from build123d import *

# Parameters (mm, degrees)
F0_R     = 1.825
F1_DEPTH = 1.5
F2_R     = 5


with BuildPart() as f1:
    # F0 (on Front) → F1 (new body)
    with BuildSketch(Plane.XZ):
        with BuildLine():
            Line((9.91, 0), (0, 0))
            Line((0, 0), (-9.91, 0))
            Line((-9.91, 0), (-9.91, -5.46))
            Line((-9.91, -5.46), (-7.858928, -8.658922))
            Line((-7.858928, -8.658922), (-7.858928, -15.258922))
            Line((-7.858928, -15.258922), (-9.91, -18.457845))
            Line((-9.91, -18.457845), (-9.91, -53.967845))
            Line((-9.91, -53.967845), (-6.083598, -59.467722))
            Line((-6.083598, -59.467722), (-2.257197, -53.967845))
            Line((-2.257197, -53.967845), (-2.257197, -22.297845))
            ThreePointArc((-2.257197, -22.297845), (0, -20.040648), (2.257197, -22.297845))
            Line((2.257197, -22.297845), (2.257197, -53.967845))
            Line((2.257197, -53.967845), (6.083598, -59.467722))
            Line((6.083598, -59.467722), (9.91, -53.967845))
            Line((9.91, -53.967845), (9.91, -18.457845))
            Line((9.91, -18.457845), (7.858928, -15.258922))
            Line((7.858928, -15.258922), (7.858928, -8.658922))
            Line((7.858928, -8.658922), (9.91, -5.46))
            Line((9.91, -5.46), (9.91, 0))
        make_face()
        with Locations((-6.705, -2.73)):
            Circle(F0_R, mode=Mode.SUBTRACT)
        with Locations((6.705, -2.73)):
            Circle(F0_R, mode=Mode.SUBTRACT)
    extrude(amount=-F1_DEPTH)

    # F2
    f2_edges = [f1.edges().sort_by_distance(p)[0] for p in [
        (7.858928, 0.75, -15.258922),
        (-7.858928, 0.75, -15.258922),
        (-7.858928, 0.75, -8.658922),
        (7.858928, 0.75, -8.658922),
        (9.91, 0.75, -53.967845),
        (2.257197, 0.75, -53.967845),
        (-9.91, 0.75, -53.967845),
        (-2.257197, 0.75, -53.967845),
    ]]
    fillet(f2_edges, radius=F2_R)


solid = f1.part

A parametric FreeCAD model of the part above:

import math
import FreeCAD as App
import Part
import Sketcher
from FreeCAD import Vector


def edges_at(feature, points):
    """Names of the edges that pass closest to the given points."""
    edges = feature.Shape.Edges
    near = lambda p: min(range(len(edges)), key=lambda i: edges[i].distToShape(Part.Vertex(*p))[0])
    return sorted({f"Edge{near(p) + 1}" for p in points})

doc = App.newDocument("Part")
params = doc.addObject("Spreadsheet::Sheet", "Params")
for row, (alias, value) in enumerate([
    ("sketch1_diameter", "3.65 mm"),
    ("sketch1_height", "6.6 mm"),
    ("sketch1_length", "3.8 mm"),
    ("sketch1_length2", "6.7 mm"),
    ("sketch1_width", "19.82 mm"),
    ("pad1_length", "1.5 mm"),
    ("fillet_radius", "5 mm"),
], start=1):
    params.set(f"A{row}", alias)
    params.set(f"B{row}", "=" + value)
    params.setAlias(f"B{row}", alias)

body = doc.addObject("PartDesign::Body", "Body")

# Sketch on XZ plane
sketch1 = doc.addObject("Sketcher::SketchObject", "Sketch")
body.addObject(sketch1)
sketch1.AttachmentSupport = (doc.XZ_Plane, [""])
sketch1.MapMode = "FlatFace"
sketch1.addGeometry([
    Part.LineSegment(Vector(9.91, 0, 0), Vector(-9.91, 0, 0)),  # 0
    Part.LineSegment(Vector(-9.91, 0, 0), Vector(-9.91, -5.46, 0)),  # 1
    Part.LineSegment(Vector(-9.91, -5.46, 0), Vector(-7.858928, -8.658922, 0)),  # 2
    Part.LineSegment(Vector(-7.858928, -8.658922, 0), Vector(-7.858928, -15.258922, 0)),  # 3
    Part.LineSegment(Vector(-7.858928, -15.258922, 0), Vector(-9.91, -18.457845, 0)),  # 4
    Part.LineSegment(Vector(-9.91, -18.457845, 0), Vector(-9.91, -53.967845, 0)),  # 5
    Part.LineSegment(Vector(-9.91, -53.967845, 0), Vector(-6.083598, -59.467722, 0)),  # 6
    Part.LineSegment(Vector(-6.083598, -59.467722, 0), Vector(-2.257197, -53.967845, 0)),  # 7
    Part.LineSegment(Vector(-2.257197, -53.967845, 0), Vector(-2.257197, -22.297845, 0)),  # 8
    Part.ArcOfCircle(Part.Circle(Vector(0, -22.297845, 0), Vector(0, 0, 1), 2.257197), math.radians(0), math.radians(180)),  # 9
    Part.LineSegment(Vector(2.257197, -22.297845, 0), Vector(2.257197, -53.967845, 0)),  # 10
    Part.LineSegment(Vector(2.257197, -53.967845, 0), Vector(6.083598, -59.467722, 0)),  # 11
    Part.LineSegment(Vector(6.083598, -59.467722, 0), Vector(9.91, -53.967845, 0)),  # 12
    Part.LineSegment(Vector(9.91, -53.967845, 0), Vector(9.91, -18.457845, 0)),  # 13
    Part.LineSegment(Vector(9.91, -18.457845, 0), Vector(7.858928, -15.258922, 0)),  # 14
    Part.LineSegment(Vector(7.858928, -15.258922, 0), Vector(7.858928, -8.658922, 0)),  # 15
    Part.LineSegment(Vector(7.858928, -8.658922, 0), Vector(9.91, -5.46, 0)),  # 16
    Part.LineSegment(Vector(9.91, -5.46, 0), Vector(9.91, 0, 0)),  # 17
    Part.Circle(Vector(-6.705, -2.73, 0), Vector(0, 0, 1), 1.825),  # 18
    Part.Circle(Vector(6.705, -2.73, 0), Vector(0, 0, 1), 1.825),  # 19
], False)
sketch1.addConstraint([
    Sketcher.Constraint("Coincident", 0, 2, 1, 1),
    Sketcher.Constraint("Coincident", 1, 2, 2, 1),
    Sketcher.Constraint("Coincident", 2, 2, 3, 1),
    Sketcher.Constraint("Coincident", 3, 2, 4, 1),
    Sketcher.Constraint("Coincident", 4, 2, 5, 1),
    Sketcher.Constraint("Coincident", 5, 2, 6, 1),
    Sketcher.Constraint("Coincident", 6, 2, 7, 1),
    Sketcher.Constraint("Coincident", 7, 2, 8, 1),
    Sketcher.Constraint("Tangent", 8, 2, 9, 2),
    Sketcher.Constraint("Tangent", 9, 1, 10, 1),
    Sketcher.Constraint("Coincident", 10, 2, 11, 1),
    Sketcher.Constraint("Coincident", 11, 2, 12, 1),
    Sketcher.Constraint("Coincident", 12, 2, 13, 1),
    Sketcher.Constraint("Coincident", 13, 2, 14, 1),
    Sketcher.Constraint("Coincident", 14, 2, 15, 1),
    Sketcher.Constraint("Coincident", 15, 2, 16, 1),
    Sketcher.Constraint("Coincident", 16, 2, 17, 1),
    Sketcher.Constraint("Coincident", 17, 2, 0, 1),
    Sketcher.Constraint("Horizontal", 0),
    Sketcher.Constraint("Vertical", 1),
    Sketcher.Constraint("Vertical", 3),
    Sketcher.Constraint("Vertical", 5),
    Sketcher.Constraint("Vertical", 8),
    Sketcher.Constraint("Vertical", 10),
    Sketcher.Constraint("Vertical", 13),
    Sketcher.Constraint("Vertical", 15),
    Sketcher.Constraint("Vertical", 17),
    Sketcher.Constraint("Equal", 18, 19),
    Sketcher.Constraint("Symmetric", 0, 2, 17, 2, -1, 1),
    Sketcher.Constraint("Symmetric", 18, 3, 19, 3, -2),
    Sketcher.Constraint("Symmetric", 7, 2, 10, 2, -2),
    Sketcher.Constraint("Symmetric", 6, 2, 11, 2, -2),
    Sketcher.Constraint("Symmetric", 5, 2, 12, 2, -2),
    Sketcher.Constraint("Symmetric", 3, 2, 14, 2, -2),
    Sketcher.Constraint("Parallel", 6, 11),
    Sketcher.Constraint("Parallel", 2, 14),
    Sketcher.Constraint("Parallel", 4, 16),
    Sketcher.Constraint("Horizontal", 5, 2, 7, 2),
    Sketcher.Constraint("Horizontal", 4, 2, 13, 2),
    Sketcher.Constraint("Horizontal", 2, 2, 15, 2),
    Sketcher.Constraint("Vertical", 1, 2, 4, 2),
    Sketcher.Constraint("Diameter", 18, 3.65),
    Sketcher.Constraint("DistanceY", 3, 2, 3, 1, 6.6),
    Sketcher.Constraint("Distance", 2, 3.8),
    Sketcher.Constraint("Distance", 6, 6.7),
    Sketcher.Constraint("DistanceX", 0, 2, 0, 1, 19.82),
    Sketcher.Constraint("DistanceY", 1, 2, 1, 1, 5.46),
    Sketcher.Constraint("DistanceY", 5, 2, 5, 1, 35.51),
    Sketcher.Constraint("DistanceY", 8, 1, 8, 2, 31.67),
    Sketcher.Constraint("DistanceY", 18, 3, -1, 1, 2.73),
    Sketcher.Constraint("DistanceX", 18, 3, 19, 3, 13.41),
    Sketcher.Constraint("Radius", 9, 2.257197),
    Sketcher.Constraint("DistanceY", 6, 2, 3, 2, 44.2088),
])
sketch1.setExpression("Constraints[41]", "Params.sketch1_diameter")
sketch1.setExpression("Constraints[42]", "Params.sketch1_height")
sketch1.setExpression("Constraints[43]", "Params.sketch1_length")
sketch1.setExpression("Constraints[44]", "Params.sketch1_length2")
sketch1.setExpression("Constraints[45]", "Params.sketch1_width")
pad1 = doc.addObject("PartDesign::Pad", "Pad")
body.addObject(pad1)
pad1.Profile = sketch1
pad1.setExpression("Length", "Params.pad1_length")
pad1.Reversed = True
doc.recompute()

fillet = doc.addObject("PartDesign::Fillet", "Fillet")
body.addObject(fillet)
fillet.Base = (pad1, edges_at(pad1, [
    (7.859, 0.75, -15.259),
    (-7.859, 0.75, -15.259),
    (-7.859, 0.75, -8.659),
    (7.859, 0.75, -8.659),
    (9.91, 0.75, -53.968),
    (2.257, 0.75, -53.968),
    (-9.91, 0.75, -53.968),
    (-2.257, 0.75, -53.968),
]))
fillet.setExpression("Radius", "Params.fillet_radius")

doc.recompute()
